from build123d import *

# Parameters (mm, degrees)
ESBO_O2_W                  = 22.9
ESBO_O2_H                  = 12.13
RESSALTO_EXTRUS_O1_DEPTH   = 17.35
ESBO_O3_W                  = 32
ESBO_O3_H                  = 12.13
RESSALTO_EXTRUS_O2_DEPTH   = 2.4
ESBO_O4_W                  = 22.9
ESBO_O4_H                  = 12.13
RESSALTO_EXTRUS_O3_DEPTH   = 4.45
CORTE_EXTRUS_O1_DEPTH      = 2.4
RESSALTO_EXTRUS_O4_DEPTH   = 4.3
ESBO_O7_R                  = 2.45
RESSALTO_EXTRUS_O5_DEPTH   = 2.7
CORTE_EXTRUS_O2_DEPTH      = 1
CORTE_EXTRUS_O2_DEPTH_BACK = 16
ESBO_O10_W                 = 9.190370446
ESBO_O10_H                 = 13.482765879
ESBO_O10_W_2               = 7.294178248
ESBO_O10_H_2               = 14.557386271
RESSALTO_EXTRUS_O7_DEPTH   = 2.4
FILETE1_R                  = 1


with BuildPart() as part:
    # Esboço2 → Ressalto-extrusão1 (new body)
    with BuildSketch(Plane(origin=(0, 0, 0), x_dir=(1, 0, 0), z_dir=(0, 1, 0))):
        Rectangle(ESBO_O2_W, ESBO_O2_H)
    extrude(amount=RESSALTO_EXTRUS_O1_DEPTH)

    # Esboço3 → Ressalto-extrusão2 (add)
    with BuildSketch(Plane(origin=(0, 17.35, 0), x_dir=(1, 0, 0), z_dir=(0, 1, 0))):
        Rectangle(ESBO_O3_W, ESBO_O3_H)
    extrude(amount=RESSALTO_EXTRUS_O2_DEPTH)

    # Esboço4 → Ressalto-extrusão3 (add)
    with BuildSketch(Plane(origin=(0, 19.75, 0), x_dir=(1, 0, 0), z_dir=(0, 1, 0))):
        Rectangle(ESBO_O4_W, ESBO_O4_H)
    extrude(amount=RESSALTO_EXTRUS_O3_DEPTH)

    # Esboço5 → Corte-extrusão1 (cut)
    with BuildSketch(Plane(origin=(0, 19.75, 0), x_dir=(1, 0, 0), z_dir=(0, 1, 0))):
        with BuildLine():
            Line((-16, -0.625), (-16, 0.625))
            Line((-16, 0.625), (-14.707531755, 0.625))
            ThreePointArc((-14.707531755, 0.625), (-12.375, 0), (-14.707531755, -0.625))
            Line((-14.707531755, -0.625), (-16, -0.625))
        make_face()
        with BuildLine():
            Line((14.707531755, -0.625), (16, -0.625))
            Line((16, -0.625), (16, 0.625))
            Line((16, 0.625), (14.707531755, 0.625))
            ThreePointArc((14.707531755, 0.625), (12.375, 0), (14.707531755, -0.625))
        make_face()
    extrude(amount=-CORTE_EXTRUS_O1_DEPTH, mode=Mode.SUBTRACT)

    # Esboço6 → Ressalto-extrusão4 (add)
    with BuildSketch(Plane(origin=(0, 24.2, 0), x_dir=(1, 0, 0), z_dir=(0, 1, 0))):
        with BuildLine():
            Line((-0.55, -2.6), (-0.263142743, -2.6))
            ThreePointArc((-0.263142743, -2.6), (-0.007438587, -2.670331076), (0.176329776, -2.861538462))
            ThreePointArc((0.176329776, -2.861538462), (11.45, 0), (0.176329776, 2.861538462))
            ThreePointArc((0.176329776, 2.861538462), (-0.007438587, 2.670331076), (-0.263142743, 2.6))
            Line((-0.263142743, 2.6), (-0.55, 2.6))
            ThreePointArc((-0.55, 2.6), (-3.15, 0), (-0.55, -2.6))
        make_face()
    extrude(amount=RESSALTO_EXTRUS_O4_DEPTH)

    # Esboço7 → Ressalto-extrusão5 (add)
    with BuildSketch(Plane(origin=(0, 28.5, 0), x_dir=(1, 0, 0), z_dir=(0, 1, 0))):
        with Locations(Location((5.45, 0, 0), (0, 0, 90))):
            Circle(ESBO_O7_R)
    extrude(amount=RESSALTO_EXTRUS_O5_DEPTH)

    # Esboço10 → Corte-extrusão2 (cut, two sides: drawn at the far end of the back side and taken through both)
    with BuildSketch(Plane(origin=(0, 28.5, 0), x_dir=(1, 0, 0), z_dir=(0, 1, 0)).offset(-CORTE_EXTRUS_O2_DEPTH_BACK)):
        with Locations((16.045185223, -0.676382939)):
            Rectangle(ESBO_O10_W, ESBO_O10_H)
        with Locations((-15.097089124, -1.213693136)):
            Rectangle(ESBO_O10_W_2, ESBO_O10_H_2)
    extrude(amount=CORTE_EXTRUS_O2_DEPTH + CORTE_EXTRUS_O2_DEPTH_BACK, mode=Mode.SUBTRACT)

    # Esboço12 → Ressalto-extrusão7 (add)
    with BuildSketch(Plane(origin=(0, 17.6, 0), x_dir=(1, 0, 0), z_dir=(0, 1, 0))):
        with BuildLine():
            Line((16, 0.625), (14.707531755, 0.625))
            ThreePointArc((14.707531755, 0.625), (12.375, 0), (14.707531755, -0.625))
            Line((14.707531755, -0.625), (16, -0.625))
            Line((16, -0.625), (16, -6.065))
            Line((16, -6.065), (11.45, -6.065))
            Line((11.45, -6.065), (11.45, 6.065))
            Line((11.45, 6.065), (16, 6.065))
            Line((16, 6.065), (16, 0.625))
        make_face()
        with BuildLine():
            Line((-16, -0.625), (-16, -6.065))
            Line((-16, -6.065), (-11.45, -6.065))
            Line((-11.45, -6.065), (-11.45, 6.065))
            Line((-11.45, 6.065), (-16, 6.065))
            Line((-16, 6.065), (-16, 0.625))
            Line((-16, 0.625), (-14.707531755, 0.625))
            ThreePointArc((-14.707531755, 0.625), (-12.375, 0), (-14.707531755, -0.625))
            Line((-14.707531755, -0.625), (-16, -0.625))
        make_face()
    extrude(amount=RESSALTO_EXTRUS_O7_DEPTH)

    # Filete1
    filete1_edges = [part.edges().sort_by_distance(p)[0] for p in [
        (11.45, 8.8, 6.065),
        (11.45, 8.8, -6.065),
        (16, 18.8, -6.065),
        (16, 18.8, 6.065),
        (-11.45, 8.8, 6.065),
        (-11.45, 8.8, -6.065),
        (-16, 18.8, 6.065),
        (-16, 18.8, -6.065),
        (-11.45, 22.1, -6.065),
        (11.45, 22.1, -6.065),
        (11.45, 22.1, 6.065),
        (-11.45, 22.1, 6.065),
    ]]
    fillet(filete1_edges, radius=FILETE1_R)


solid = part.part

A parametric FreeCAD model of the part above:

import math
import FreeCAD as App
import Part
import Sketcher
Q = App.Units.Quantity


def edges_at(feature, points):
    """Names of the edges that pass closest to the given points."""
    edges = feature.Shape.Edges
    near = lambda p: min(range(len(edges)), key=lambda i: edges[i].distToShape(Part.Vertex(*p))[0])
    return sorted({f"Edge{near(p) + 1}" for p in points})


def add_polygon(sketch, points):
    """Adds a closed chain of lines whose ends are joined by coincident constraints."""
    first, n = sketch.GeometryCount, len(points)
    for a, b in zip(points, points[1:] + points[:1]):
        sketch.addGeometry(Part.LineSegment(App.Vector(*a, 0), App.Vector(*b, 0)), False)
    for i in range(n):
        sketch.addConstraint(Sketcher.Constraint("Coincident", first + i, 2, first + (i + 1) % n, 1))

doc = App.newDocument("Part")
body = doc.addObject("PartDesign::Body", "Body")

# Sketch on XZ plane
sketch1 = body.newObject("Sketcher::SketchObject", "Sketch")
sketch1.AttachmentSupport = (doc.getObject("XZ_Plane"), [""])
sketch1.MapMode = "FlatFace"
add_polygon(sketch1, [(-11, -6), (-11, 6), (11, 6), (11, -6)])  # lines 0-3
sketch1.addConstraint([
    Sketcher.Constraint("Vertical", 0),
    Sketcher.Constraint("Horizontal", 1),
    Sketcher.Constraint("Vertical", 2),
    Sketcher.Constraint("Horizontal", 3),
    Sketcher.Constraint("Symmetric", 0, 2, 2, 2, -1, 1),
    Sketcher.Constraint("DistanceX", 1, 1, 1, 2, Q("22.9 mm")),
    Sketcher.Constraint("DistanceY", 0, 1, 0, 2, Q("12.13 mm")),
])
pad1 = body.newObject("PartDesign::Pad", "Pad")
pad1.Profile = sketch1
pad1.Length = 17.35
pad1.Reversed = True

# Sketch on XZ plane
sketch2 = body.newObject("Sketcher::SketchObject", "Sketch001")
sketch2.AttachmentSupport = (doc.getObject("XZ_Plane"), [""])
sketch2.MapMode = "FlatFace"
sketch2.AttachmentOffset = App.Placement(App.Vector(0, 0, -17.35), App.Rotation())
add_polygon(sketch2, [(-16, -6), (-16, 6), (16, 6), (16, -6)])  # lines 0-3
sketch2.addConstraint([
    Sketcher.Constraint("Vertical", 0),
    Sketcher.Constraint("Horizontal", 1),
    Sketcher.Constraint("Vertical", 2),
    Sketcher.Constraint("Horizontal", 3),
    Sketcher.Constraint("Symmetric", 0, 2, 2, 2, -1, 1),
    Sketcher.Constraint("DistanceX", 1, 1, 1, 2, Q("32 mm")),
    Sketcher.Constraint("DistanceY", 0, 1, 0, 2, Q("12.13 mm")),
])
pad2 = body.newObject("PartDesign::Pad", "Pad001")
pad2.Profile = sketch2
pad2.Length = 2.4
pad2.Reversed = True

# Sketch on XZ plane
sketch3 = body.newObject("Sketcher::SketchObject", "Sketch002")
sketch3.AttachmentSupport = (doc.getObject("XZ_Plane"), [""])
sketch3.MapMode = "FlatFace"
sketch3.AttachmentOffset = App.Placement(App.Vector(0, 0, -19.75), App.Rotation())
add_polygon(sketch3, [(-11, -6), (-11, 6), (11, 6), (11, -6)])  # lines 0-3
sketch3.addConstraint([
    Sketcher.Constraint("Vertical", 0),
    Sketcher.Constraint("Horizontal", 1),
    Sketcher.Constraint("Vertical", 2),
    Sketcher.Constraint("Horizontal", 3),
    Sketcher.Constraint("Symmetric", 0, 2, 2, 2, -1, 1),
    Sketcher.Constraint("DistanceX", 1, 1, 1, 2, Q("22.9 mm")),
    Sketcher.Constraint("DistanceY", 0, 1, 0, 2, Q("12.13 mm")),
])
pad3 = body.newObject("PartDesign::Pad", "Pad002")
pad3.Profile = sketch3
pad3.Length = 4.45
pad3.Reversed = True

# Sketch on XZ plane
sketch4 = body.newObject("Sketcher::SketchObject", "Sketch003")
sketch4.AttachmentSupport = (doc.getObject("XZ_Plane"), [""])
sketch4.MapMode = "FlatFace"
sketch4.AttachmentOffset = App.Placement(App.Vector(0, 0, -19.75), App.Rotation())
sketch4.addGeometry([
    Part.LineSegment(App.Vector(-16, -0.6, 0), App.Vector(-16, 0.6, 0)),  # 0
    Part.LineSegment(App.Vector(-16, 0.6, 0), App.Vector(-14.7, 0.6, 0)),  # 1
    Part.ArcOfCircle(Part.Circle(App.Vector(-13.6, 0, 0), App.Vector(0, 0, 1), 1.2), math.radians(-150), math.radians(150)),  # 2
    Part.LineSegment(App.Vector(-14.7, -0.6, 0), App.Vector(-16, -0.6, 0)),  # 3
    Part.LineSegment(App.Vector(14.7, 0.6, 0), App.Vector(16, 0.6, 0)),  # 4
    Part.LineSegment(App.Vector(16, 0.6, 0), App.Vector(16, -0.6, 0)),  # 5
    Part.LineSegment(App.Vector(16, -0.6, 0), App.Vector(14.7, -0.6, 0)),  # 6
    Part.ArcOfCircle(Part.Circle(App.Vector(13.6, 0, 0), App.Vector(0, 0, 1), 1.2), math.radians(30), math.radians(330)),  # 7
], False)
sketch4.addConstraint([
    Sketcher.Constraint("Coincident", 0, 2, 1, 1),
    Sketcher.Constraint("Coincident", 1, 2, 2, 2),
    Sketcher.Constraint("Coincident", 2, 1, 3, 1),
    Sketcher.Constraint("Coincident", 3, 2, 0, 1),
    Sketcher.Constraint("Coincident", 4, 2, 5, 1),
    Sketcher.Constraint("Coincident", 5, 2, 6, 1),
    Sketcher.Constraint("Coincident", 6, 2, 7, 2),
    Sketcher.Constraint("Coincident", 7, 1, 4, 1),
    Sketcher.Constraint("Vertical", 0),
    Sketcher.Constraint("Horizontal", 1),
    Sketcher.Constraint("Horizontal", 3),
    Sketcher.Constraint("Horizontal", 4),
    Sketcher.Constraint("Vertical", 5),
    Sketcher.Constraint("Horizontal", 6),
    Sketcher.Constraint("Equal", 2, 7),
    Sketcher.Constraint("Symmetric", 2, 3, 7, 3, -1, 1),
    Sketcher.Constraint("Symmetric", 3, 2, 4, 2, -1, 1),
    Sketcher.Constraint("Symmetric", 2, 1, 6, 2, -2),
    Sketcher.Constraint("Horizontal", 1, 2, 4, 2),
    Sketcher.Constraint("Radius", 2, Q("1.25 mm")),
    Sketcher.Constraint("DistanceX", 0, 2, -1, 1, Q("16 mm")),
    Sketcher.Constraint("DistanceY", 0, 1, 0, 2, Q("1.25 mm")),
    Sketcher.Constraint("DistanceX", 2, 3, 7, 3, Q("27.25 mm")),
])
pocket1 = body.newObject("PartDesign::Pocket", "Pocket")
pocket1.Profile = sketch4
pocket1.Length = 2.4
pocket1.Reversed = True

# Sketch on XZ plane
sketch5 = body.newObject("Sketcher::SketchObject", "Sketch004")
sketch5.AttachmentSupport = (doc.getObject("XZ_Plane"), [""])
sketch5.MapMode = "FlatFace"
sketch5.AttachmentOffset = App.Placement(App.Vector(0, 0, -24.2), App.Rotation())
sketch5.addGeometry([
    Part.LineSegment(App.Vector(-0.55, 2.6, 0), App.Vector(-0.26, 2.6, 0)),  # 0
    Part.ArcOfCircle(Part.Circle(App.Vector(-0.26, 3.1, 0), App.Vector(0, 0, 1), 0.5), math.radians(-90), math.radians(-28)),  # 1
    Part.ArcOfCircle(Part.Circle(App.Vector(5.45, 0, 0), App.Vector(0, 0, 1), 6), math.radians(-152), math.radians(152)),  # 2
    Part.ArcOfCircle(Part.Circle(App.Vector(-0.26, -3.1, 0), App.Vector(0, 0, 1), 0.5), math.radians(28), math.radians(90)),  # 3
    Part.LineSegment(App.Vector(-0.26, -2.6, 0), App.Vector(-0.55, -2.6, 0)),  # 4
    Part.ArcOfCircle(Part.Circle(App.Vector(-0.55, 0, 0), App.Vector(0, 0, 1), 2.6), math.radians(90), math.radians(270)),  # 5
], False)
sketch5.addConstraint([
    Sketcher.Constraint("Tangent", 0, 2, 1, 1),
    Sketcher.Constraint("Tangent", 1, 2, 2, 2),
    Sketcher.Constraint("Tangent", 2, 1, 3, 1),
    Sketcher.Constraint("Tangent", 3, 2, 4, 1),
    Sketcher.Constraint("Tangent", 4, 2, 5, 2),
    Sketcher.Constraint("Tangent", 5, 1, 0, 1),
    Sketcher.Constraint("Horizontal", 0),
    Sketcher.Constraint("Horizontal", 4),
    Sketcher.Constraint("Equal", 1, 3),
    Sketcher.Constraint("Symmetric", 1, 3, 3, 3, -1),
    Sketcher.Constraint("Radius", 2, Q("6 mm")),
    Sketcher.Constraint("Radius", 1, Q("0.5 mm")),
    Sketcher.Constraint("Radius", 5, Q("2.6 mm")),
    Sketcher.Constraint("DistanceX", 5, 3, 2, 3, Q("6 mm")),
    Sketcher.Constraint("DistanceX", -1, 1, 2, 3, Q("5.45 mm")),
])
pad4 = body.newObject("PartDesign::Pad", "Pad003")
pad4.Profile = sketch5
pad4.Length = 4.3
pad4.Reversed = True

# Sketch on XZ plane
sketch6 = body.newObject("Sketcher::SketchObject", "Sketch005")
sketch6.AttachmentSupport = (doc.getObject("XZ_Plane"), [""])
sketch6.MapMode = "FlatFace"
sketch6.AttachmentOffset = App.Placement(App.Vector(0, 0, -28.5), App.Rotation())
sketch6.addGeometry(Part.Circle(App.Vector(5.5, 0, 0), App.Vector(0, 0, 1), 2.5), False)
sketch6.addConstraint([
    Sketcher.Constraint("PointOnObject", 0, 3, -1),
    Sketcher.Constraint("Diameter", 0, Q("4.9 mm")),
    Sketcher.Constraint("DistanceX", -1, 1, 0, 3, Q("5.45 mm")),
])
pad5 = body.newObject("PartDesign::Pad", "Pad004")
pad5.Profile = sketch6
pad5.Length = 2.7
pad5.Reversed = True

# Sketch on XZ plane
sketch7 = body.newObject("Sketcher::SketchObject", "Sketch006")
sketch7.AttachmentSupport = (doc.getObject("XZ_Plane"), [""])
sketch7.MapMode = "FlatFace"
sketch7.AttachmentOffset = App.Placement(App.Vector(0, 0, -28.5), App.Rotation())
add_polygon(sketch7, [(11, -6), (11, 7), (21, 7), (21, -6)])  # lines 0-3
add_polygon(sketch7, [(-19, -6), (-19, 8), (-11, 8), (-11, -6)])  # lines 4-7
sketch7.addConstraint([
    Sketcher.Constraint("Vertical", 0),
    Sketcher.Constraint("Horizontal", 1),
    Sketcher.Constraint("Vertical", 2),
    Sketcher.Constraint("Horizontal", 3),
    Sketcher.Constraint("Vertical", 4),
    Sketcher.Constraint("Horizontal", 5),
    Sketcher.Constraint("Vertical", 6),
    Sketcher.Constraint("Horizontal", 7),
    Sketcher.Constraint("Symmetric", 3, 2, 6, 2, -2),
    Sketcher.Constraint("DistanceX", 5, 2, 0, 2, Q("22.9 mm")),
    Sketcher.Constraint("DistanceY", 2, 2, -1, 1, Q("6.065 mm")),
    Sketcher.Constraint("DistanceX", 1, 1, 1, 2, Q("9.19037 mm")),
    Sketcher.Constraint("DistanceX", 5, 1, 5, 2, Q("7.294178 mm")),
    Sketcher.Constraint("DistanceY", 0, 1, 0, 2, Q("13.482766 mm")),
    Sketcher.Constraint("DistanceY", 4, 1, 4, 2, Q("14.557386 mm")),
])
pocket2 = body.newObject("PartDesign::Pocket", "Pocket001")
pocket2.Profile = sketch7
pocket2.Type = "ThroughAll"
pocket2.Midplane = True

# Sketch on XZ plane
sketch8 = body.newObject("Sketcher::SketchObject", "Sketch007")
sketch8.AttachmentSupport = (doc.getObject("XZ_Plane"), [""])
sketch8.MapMode = "FlatFace"
sketch8.AttachmentOffset = App.Placement(App.Vector(0, 0, -17.6), App.Rotation())
sketch8.addGeometry([
    Part.LineSegment(App.Vector(14.7, -0.6, 0), App.Vector(16, -0.6, 0)),  # 0
    Part.LineSegment(App.Vector(16, -0.6, 0), App.Vector(16, -6.1, 0)),  # 1
    Part.LineSegment(App.Vector(16, -6.1, 0), App.Vector(11.4, -6.1, 0)),  # 2
    Part.LineSegment(App.Vector(11.4, -6.1, 0), App.Vector(11.4, 6.1, 0)),  # 3
    Part.LineSegment(App.Vector(11.4, 6.1, 0), App.Vector(16, 6.1, 0)),  # 4
    Part.LineSegment(App.Vector(16, 6.1, 0), App.Vector(16, 0.6, 0)),  # 5
    Part.LineSegment(App.Vector(16, 0.6, 0), App.Vector(14.7, 0.6, 0)),  # 6
    Part.ArcOfCircle(Part.Circle(App.Vector(13.6, 0, 0), App.Vector(0, 0, 1), 1.2), math.radians(30), math.radians(330)),  # 7
    Part.LineSegment(App.Vector(-16, 0.6, 0), App.Vector(-16, 6.1, 0)),  # 8
    Part.LineSegment(App.Vector(-16, 6.1, 0), App.Vector(-11.4, 6.1, 0)),  # 9
    Part.LineSegment(App.Vector(-11.4, 6.1, 0), App.Vector(-11.4, -6.1, 0)),  # 10
    Part.LineSegment(App.Vector(-11.4, -6.1, 0), App.Vector(-16, -6.1, 0)),  # 11
    Part.LineSegment(App.Vector(-16, -6.1, 0), App.Vector(-16, -0.6, 0)),  # 12
    Part.LineSegment(App.Vector(-16, -0.6, 0), App.Vector(-14.7, -0.6, 0)),  # 13
    Part.ArcOfCircle(Part.Circle(App.Vector(-13.6, 0, 0), App.Vector(0, 0, 1), 1.2), math.radians(-150), math.radians(150)),  # 14
    Part.LineSegment(App.Vector(-14.7, 0.6, 0), App.Vector(-16, 0.6, 0)),  # 15
], False)
sketch8.addConstraint([
    Sketcher.Constraint("Coincident", 0, 2, 1, 1),
    Sketcher.Constraint("Coincident", 1, 2, 2, 1),
    Sketcher.Constraint("Coincident", 2, 2, 3, 1),
    Sketcher.Constraint("Coincident", 3, 2, 4, 1),
    Sketcher.Constraint("Coincident", 4, 2, 5, 1),
    Sketcher.Constraint("Coincident", 5, 2, 6, 1),
    Sketcher.Constraint("Coincident", 6, 2, 7, 1),
    Sketcher.Constraint("Coincident", 7, 2, 0, 1),
    Sketcher.Constraint("Coincident", 8, 2, 9, 1),
    Sketcher.Constraint("Coincident", 9, 2, 10, 1),
    Sketcher.Constraint("Coincident", 10, 2, 11, 1),
    Sketcher.Constraint("Coincident", 11, 2, 12, 1),
    Sketcher.Constraint("Coincident", 12, 2, 13, 1),
    Sketcher.Constraint("Coincident", 13, 2, 14, 1),
    Sketcher.Constraint("Coincident", 14, 2, 15, 1),
    Sketcher.Constraint("Coincident", 15, 2, 8, 1),
    Sketcher.Constraint("Horizontal", 0),
    Sketcher.Constraint("Vertical", 1),
    Sketcher.Constraint("Horizontal", 2),
    Sketcher.Constraint("Vertical", 3),
    Sketcher.Constraint("Horizontal", 4),
    Sketcher.Constraint("Vertical", 5),
    Sketcher.Constraint("Horizontal", 6),
    Sketcher.Constraint("Vertical", 8),
    Sketcher.Constraint("Horizontal", 9),
    Sketcher.Constraint("Vertical", 10),
    Sketcher.Constraint("Horizontal", 11),
    Sketcher.Constraint("Vertical", 12),
    Sketcher.Constraint("Horizontal", 13),
    Sketcher.Constraint("Horizontal", 15),
    Sketcher.Constraint("Equal", 7, 14),
    Sketcher.Constraint("Symmetric", 7, 3, 14, 3, -1, 1),
    Sketcher.Constraint("Symmetric", 1, 2, 8, 2, -1, 1),
    Sketcher.Constraint("Symmetric", 3, 2, 10, 2, -1, 1),
    Sketcher.Constraint("Symmetric", 5, 2, 12, 2, -1, 1),
    Sketcher.Constraint("Symmetric", 4, 2, 8, 2, -2),
    Sketcher.Constraint("Symmetric", 7, 2, 13, 2, -2),
    Sketcher.Constraint("Horizontal", 6, 2, 14, 2),
    Sketcher.Constraint("Radius", 7, Q("1.25 mm")),
    Sketcher.Constraint("DistanceX", -1, 1, 0, 2, Q("16 mm")),
    Sketcher.Constraint("DistanceX", 2, 2, 2, 1, Q("4.55 mm")),
    Sketcher.Constraint("DistanceY", 1, 2, 1, 1, Q("5.44 mm")),
    Sketcher.Constraint("DistanceY", 3, 1, 3, 2, Q("12.13 mm")),
    Sketcher.Constraint("DistanceX", 14, 3, 7, 3, Q("27.25 mm")),
])
pad6 = body.newObject("PartDesign::Pad", "Pad005")
pad6.Profile = sketch8
pad6.Length = 2.4
pad6.Reversed = True
doc.recompute()

fillet = body.newObject("PartDesign::Fillet", "Fillet")
fillet.Base = (pad6, edges_at(pad6, [
    (11.45, 8.8, 6.065),
    (11.45, 8.675, -6.065),
    (16, 18.8, -6.065),
    (16, 18.8, 6.065),
    (-11.45, 8.8, 6.065),
    (-11.45, 8.675, -6.065),
    (-16, 18.8, 6.065),
    (-16, 18.8, -6.065),
    (-11.45, 22.1, -6.065),
    (11.45, 22.1, -6.065),
    (11.45, 22.1, 6.065),
    (-11.45, 22.1, 6.065),
]))
fillet.Radius = 1

doc.recompute()
